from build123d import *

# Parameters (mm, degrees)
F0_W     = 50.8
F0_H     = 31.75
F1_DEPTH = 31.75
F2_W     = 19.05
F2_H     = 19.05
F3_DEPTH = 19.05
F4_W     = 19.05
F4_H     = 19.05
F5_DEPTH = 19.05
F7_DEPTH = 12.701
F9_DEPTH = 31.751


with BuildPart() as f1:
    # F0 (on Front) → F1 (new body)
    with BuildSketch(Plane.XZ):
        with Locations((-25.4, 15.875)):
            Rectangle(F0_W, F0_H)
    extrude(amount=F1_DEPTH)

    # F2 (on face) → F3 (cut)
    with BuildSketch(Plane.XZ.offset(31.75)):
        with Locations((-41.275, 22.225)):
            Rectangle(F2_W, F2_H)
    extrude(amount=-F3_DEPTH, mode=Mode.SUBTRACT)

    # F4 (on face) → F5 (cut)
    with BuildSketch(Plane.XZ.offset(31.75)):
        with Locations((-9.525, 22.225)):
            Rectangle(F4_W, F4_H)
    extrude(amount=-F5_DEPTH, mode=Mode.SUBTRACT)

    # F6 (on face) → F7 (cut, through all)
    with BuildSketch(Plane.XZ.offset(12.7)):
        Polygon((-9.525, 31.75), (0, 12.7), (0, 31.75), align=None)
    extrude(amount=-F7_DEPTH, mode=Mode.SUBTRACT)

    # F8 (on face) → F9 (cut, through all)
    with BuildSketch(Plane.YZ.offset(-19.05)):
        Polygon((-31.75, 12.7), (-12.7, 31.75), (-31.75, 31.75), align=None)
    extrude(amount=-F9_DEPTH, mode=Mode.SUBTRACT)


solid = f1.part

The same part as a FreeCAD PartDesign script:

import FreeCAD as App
import Part
import Sketcher
from FreeCAD import Vector
Q = App.Units.Quantity

doc = App.newDocument("Part")
body = doc.addObject("PartDesign::Body", "Body")

# Sketch on XZ plane
sketch1 = body.newObject("Sketcher::SketchObject", "Sketch")
sketch1.AttachmentSupport = (doc.getObject("XZ_Plane"), [""])
sketch1.MapMode = "FlatFace"
sketch1.addGeometry([
    Part.LineSegment(Vector(-50.8, 31.75, 0), Vector(-50.8, 0, 0)),
    Part.LineSegment(Vector(-50.8, 0, 0), Vector(0, 0, 0)),
    Part.LineSegment(Vector(0, 0, 0), Vector(0, 31.75, 0)),
    Part.LineSegment(Vector(0, 31.75, 0), Vector(-50.8, 31.75, 0)),
], False)
sketch1.addConstraint([
    Sketcher.Constraint("Coincident", 0, 2, 1, 1),
    Sketcher.Constraint("Coincident", 1, 2, 2, 1),
    Sketcher.Constraint("Coincident", 2, 2, 3, 1),
    Sketcher.Constraint("Coincident", 3, 2, 0, 1),
    Sketcher.Constraint("Vertical", 0),
    Sketcher.Constraint("Horizontal", 1),
    Sketcher.Constraint("Vertical", 2),
    Sketcher.Constraint("Horizontal", 3),
    Sketcher.Constraint("Coincident", 1, 2, -1, 1),
    Sketcher.Constraint("DistanceX", 1, 1, 1, 2, Q("2 in")),
    Sketcher.Constraint("DistanceY", 0, 2, 0, 1, Q("1.25 in")),
])
pad1 = body.newObject("PartDesign::Pad", "Pad")
pad1.Profile = sketch1
pad1.Length = Q("1.25 in")

# Sketch on XZ plane
sketch2 = body.newObject("Sketcher::SketchObject", "Sketch001")
sketch2.AttachmentSupport = (doc.getObject("XZ_Plane"), [""])
sketch2.MapMode = "FlatFace"
sketch2.AttachmentOffset = App.Placement(Vector(0, 0, 1.25 * 25.4), App.Rotation())
sketch2.addGeometry([
    Part.LineSegment(Vector(-50.8, 31.75, 0), Vector(-50.8, 12.7, 0)),
    Part.LineSegment(Vector(-50.8, 12.7, 0), Vector(-31.75, 12.7, 0)),
    Part.LineSegment(Vector(-31.75, 12.7, 0), Vector(-31.75, 31.75, 0)),
    Part.LineSegment(Vector(-31.75, 31.75, 0), Vector(-50.8, 31.75, 0)),
], False)
sketch2.addConstraint([
    Sketcher.Constraint("Coincident", 0, 2, 1, 1),
    Sketcher.Constraint("Coincident", 1, 2, 2, 1),
    Sketcher.Constraint("Coincident", 2, 2, 3, 1),
    Sketcher.Constraint("Coincident", 3, 2, 0, 1),
    Sketcher.Constraint("Vertical", 0),
    Sketcher.Constraint("Horizontal", 1),
    Sketcher.Constraint("Vertical", 2),
    Sketcher.Constraint("Horizontal", 3),
    Sketcher.Constraint("Equal", 3, 0),
    Sketcher.Constraint("DistanceX", 0, 2, -1, 1, Q("2 in")),
    Sketcher.Constraint("DistanceX", 1, 1, 1, 2, Q("0.75 in")),
    Sketcher.Constraint("DistanceY", -1, 1, 0, 2, Q("0.5 in")),
])
pocket1 = body.newObject("PartDesign::Pocket", "Pocket")
pocket1.Profile = sketch2
pocket1.Length = Q("0.75 in")

# Sketch on XZ plane
sketch3 = body.newObject("Sketcher::SketchObject", "Sketch002")
sketch3.AttachmentSupport = (doc.getObject("XZ_Plane"), [""])
sketch3.MapMode = "FlatFace"
sketch3.AttachmentOffset = App.Placement(Vector(0, 0, 1.25 * 25.4), App.Rotation())
sketch3.addGeometry([
    Part.LineSegment(Vector(-19.05, 31.75, 0), Vector(-19.05, 12.7, 0)),
    Part.LineSegment(Vector(-19.05, 12.7, 0), Vector(0, 12.7, 0)),
    Part.LineSegment(Vector(0, 12.7, 0), Vector(0, 31.75, 0)),
    Part.LineSegment(Vector(0, 31.75, 0), Vector(-19.05, 31.75, 0)),
], False)
sketch3.addConstraint([
    Sketcher.Constraint("Coincident", 0, 2, 1, 1),
    Sketcher.Constraint("Coincident", 1, 2, 2, 1),
    Sketcher.Constraint("Coincident", 2, 2, 3, 1),
    Sketcher.Constraint("Coincident", 3, 2, 0, 1),
    Sketcher.Constraint("Vertical", 0),
    Sketcher.Constraint("Horizontal", 1),
    Sketcher.Constraint("Vertical", 2),
    Sketcher.Constraint("Horizontal", 3),
    Sketcher.Constraint("PointOnObject", 1, 2, -2),
    Sketcher.Constraint("Equal", 3, 0),
    Sketcher.Constraint("DistanceX", 1, 1, 1, 2, Q("0.75 in")),
    Sketcher.Constraint("DistanceY", -1, 1, 0, 2, Q("0.5 in")),
])
pocket2 = body.newObject("PartDesign::Pocket", "Pocket001")
pocket2.Profile = sketch3
pocket2.Length = Q("0.75 in")

# Sketch on XZ plane
sketch4 = body.newObject("Sketcher::SketchObject", "Sketch003")
sketch4.AttachmentSupport = (doc.getObject("XZ_Plane"), [""])
sketch4.MapMode = "FlatFace"
sketch4.AttachmentOffset = App.Placement(Vector(0, 0, 0.5 * 25.4), App.Rotation())
sketch4.addGeometry([
    Part.LineSegment(Vector(-9.525, 31.75, 0), Vector(0, 12.7, 0)),
    Part.LineSegment(Vector(0, 12.7, 0), Vector(0, 31.75, 0)),
    Part.LineSegment(Vector(0, 31.75, 0), Vector(-9.525, 31.75, 0)),
], False)
sketch4.addConstraint([
    Sketcher.Constraint("Coincident", 0, 2, 1, 1),
    Sketcher.Constraint("Coincident", 1, 2, 2, 1),
    Sketcher.Constraint("Coincident", 2, 2, 0, 1),
    Sketcher.Constraint("Vertical", 1),
    Sketcher.Constraint("Horizontal", 2),
    Sketcher.Constraint("PointOnObject", 0, 2, -2),
    Sketcher.Constraint("DistanceY", 1, 1, 1, 2, Q("0.75 in")),
    Sketcher.Constraint("DistanceY", -1, 1, 0, 2, Q("0.5 in")),
    Sketcher.Constraint("DistanceX", 2, 2, 2, 1, Q("0.375 in")),
])
pocket3 = body.newObject("PartDesign::Pocket", "Pocket002")
pocket3.Profile = sketch4
pocket3.Type = "ThroughAll"

# Sketch on YZ plane
sketch5 = body.newObject("Sketcher::SketchObject", "Sketch004")
sketch5.AttachmentSupport = (doc.getObject("YZ_Plane"), [""])
sketch5.MapMode = "FlatFace"
sketch5.AttachmentOffset = App.Placement(Vector(0, 0, -0.75 * 25.4), App.Rotation())
sketch5.addGeometry([
    Part.LineSegment(Vector(-31.75, 12.7, 0), Vector(-12.7, 31.75, 0)),
    Part.LineSegment(Vector(-12.7, 31.75, 0), Vector(-31.75, 31.75, 0)),
    Part.LineSegment(Vector(-31.75, 31.75, 0), Vector(-31.75, 12.7, 0)),
], False)
sketch5.addConstraint([
    Sketcher.Constraint("Coincident", 0, 2, 1, 1),
    Sketcher.Constraint("Coincident", 1, 2, 2, 1),
    Sketcher.Constraint("Coincident", 2, 2, 0, 1),
    Sketcher.Constraint("Horizontal", 1),
    Sketcher.Constraint("Vertical", 2),
    Sketcher.Constraint("Equal", 1, 2),
    Sketcher.Constraint("DistanceX", 1, 2, 1, 1, Q("0.75 in")),
    Sketcher.Constraint("DistanceX", 0, 2, -1, 1, Q("0.5 in")),
    Sketcher.Constraint("DistanceY", -1, 1, 2, 2, Q("0.5 in")),
])
pocket4 = body.newObject("PartDesign::Pocket", "Pocket003")
pocket4.Profile = sketch5
pocket4.Type = "ThroughAll"

doc.recompute()
